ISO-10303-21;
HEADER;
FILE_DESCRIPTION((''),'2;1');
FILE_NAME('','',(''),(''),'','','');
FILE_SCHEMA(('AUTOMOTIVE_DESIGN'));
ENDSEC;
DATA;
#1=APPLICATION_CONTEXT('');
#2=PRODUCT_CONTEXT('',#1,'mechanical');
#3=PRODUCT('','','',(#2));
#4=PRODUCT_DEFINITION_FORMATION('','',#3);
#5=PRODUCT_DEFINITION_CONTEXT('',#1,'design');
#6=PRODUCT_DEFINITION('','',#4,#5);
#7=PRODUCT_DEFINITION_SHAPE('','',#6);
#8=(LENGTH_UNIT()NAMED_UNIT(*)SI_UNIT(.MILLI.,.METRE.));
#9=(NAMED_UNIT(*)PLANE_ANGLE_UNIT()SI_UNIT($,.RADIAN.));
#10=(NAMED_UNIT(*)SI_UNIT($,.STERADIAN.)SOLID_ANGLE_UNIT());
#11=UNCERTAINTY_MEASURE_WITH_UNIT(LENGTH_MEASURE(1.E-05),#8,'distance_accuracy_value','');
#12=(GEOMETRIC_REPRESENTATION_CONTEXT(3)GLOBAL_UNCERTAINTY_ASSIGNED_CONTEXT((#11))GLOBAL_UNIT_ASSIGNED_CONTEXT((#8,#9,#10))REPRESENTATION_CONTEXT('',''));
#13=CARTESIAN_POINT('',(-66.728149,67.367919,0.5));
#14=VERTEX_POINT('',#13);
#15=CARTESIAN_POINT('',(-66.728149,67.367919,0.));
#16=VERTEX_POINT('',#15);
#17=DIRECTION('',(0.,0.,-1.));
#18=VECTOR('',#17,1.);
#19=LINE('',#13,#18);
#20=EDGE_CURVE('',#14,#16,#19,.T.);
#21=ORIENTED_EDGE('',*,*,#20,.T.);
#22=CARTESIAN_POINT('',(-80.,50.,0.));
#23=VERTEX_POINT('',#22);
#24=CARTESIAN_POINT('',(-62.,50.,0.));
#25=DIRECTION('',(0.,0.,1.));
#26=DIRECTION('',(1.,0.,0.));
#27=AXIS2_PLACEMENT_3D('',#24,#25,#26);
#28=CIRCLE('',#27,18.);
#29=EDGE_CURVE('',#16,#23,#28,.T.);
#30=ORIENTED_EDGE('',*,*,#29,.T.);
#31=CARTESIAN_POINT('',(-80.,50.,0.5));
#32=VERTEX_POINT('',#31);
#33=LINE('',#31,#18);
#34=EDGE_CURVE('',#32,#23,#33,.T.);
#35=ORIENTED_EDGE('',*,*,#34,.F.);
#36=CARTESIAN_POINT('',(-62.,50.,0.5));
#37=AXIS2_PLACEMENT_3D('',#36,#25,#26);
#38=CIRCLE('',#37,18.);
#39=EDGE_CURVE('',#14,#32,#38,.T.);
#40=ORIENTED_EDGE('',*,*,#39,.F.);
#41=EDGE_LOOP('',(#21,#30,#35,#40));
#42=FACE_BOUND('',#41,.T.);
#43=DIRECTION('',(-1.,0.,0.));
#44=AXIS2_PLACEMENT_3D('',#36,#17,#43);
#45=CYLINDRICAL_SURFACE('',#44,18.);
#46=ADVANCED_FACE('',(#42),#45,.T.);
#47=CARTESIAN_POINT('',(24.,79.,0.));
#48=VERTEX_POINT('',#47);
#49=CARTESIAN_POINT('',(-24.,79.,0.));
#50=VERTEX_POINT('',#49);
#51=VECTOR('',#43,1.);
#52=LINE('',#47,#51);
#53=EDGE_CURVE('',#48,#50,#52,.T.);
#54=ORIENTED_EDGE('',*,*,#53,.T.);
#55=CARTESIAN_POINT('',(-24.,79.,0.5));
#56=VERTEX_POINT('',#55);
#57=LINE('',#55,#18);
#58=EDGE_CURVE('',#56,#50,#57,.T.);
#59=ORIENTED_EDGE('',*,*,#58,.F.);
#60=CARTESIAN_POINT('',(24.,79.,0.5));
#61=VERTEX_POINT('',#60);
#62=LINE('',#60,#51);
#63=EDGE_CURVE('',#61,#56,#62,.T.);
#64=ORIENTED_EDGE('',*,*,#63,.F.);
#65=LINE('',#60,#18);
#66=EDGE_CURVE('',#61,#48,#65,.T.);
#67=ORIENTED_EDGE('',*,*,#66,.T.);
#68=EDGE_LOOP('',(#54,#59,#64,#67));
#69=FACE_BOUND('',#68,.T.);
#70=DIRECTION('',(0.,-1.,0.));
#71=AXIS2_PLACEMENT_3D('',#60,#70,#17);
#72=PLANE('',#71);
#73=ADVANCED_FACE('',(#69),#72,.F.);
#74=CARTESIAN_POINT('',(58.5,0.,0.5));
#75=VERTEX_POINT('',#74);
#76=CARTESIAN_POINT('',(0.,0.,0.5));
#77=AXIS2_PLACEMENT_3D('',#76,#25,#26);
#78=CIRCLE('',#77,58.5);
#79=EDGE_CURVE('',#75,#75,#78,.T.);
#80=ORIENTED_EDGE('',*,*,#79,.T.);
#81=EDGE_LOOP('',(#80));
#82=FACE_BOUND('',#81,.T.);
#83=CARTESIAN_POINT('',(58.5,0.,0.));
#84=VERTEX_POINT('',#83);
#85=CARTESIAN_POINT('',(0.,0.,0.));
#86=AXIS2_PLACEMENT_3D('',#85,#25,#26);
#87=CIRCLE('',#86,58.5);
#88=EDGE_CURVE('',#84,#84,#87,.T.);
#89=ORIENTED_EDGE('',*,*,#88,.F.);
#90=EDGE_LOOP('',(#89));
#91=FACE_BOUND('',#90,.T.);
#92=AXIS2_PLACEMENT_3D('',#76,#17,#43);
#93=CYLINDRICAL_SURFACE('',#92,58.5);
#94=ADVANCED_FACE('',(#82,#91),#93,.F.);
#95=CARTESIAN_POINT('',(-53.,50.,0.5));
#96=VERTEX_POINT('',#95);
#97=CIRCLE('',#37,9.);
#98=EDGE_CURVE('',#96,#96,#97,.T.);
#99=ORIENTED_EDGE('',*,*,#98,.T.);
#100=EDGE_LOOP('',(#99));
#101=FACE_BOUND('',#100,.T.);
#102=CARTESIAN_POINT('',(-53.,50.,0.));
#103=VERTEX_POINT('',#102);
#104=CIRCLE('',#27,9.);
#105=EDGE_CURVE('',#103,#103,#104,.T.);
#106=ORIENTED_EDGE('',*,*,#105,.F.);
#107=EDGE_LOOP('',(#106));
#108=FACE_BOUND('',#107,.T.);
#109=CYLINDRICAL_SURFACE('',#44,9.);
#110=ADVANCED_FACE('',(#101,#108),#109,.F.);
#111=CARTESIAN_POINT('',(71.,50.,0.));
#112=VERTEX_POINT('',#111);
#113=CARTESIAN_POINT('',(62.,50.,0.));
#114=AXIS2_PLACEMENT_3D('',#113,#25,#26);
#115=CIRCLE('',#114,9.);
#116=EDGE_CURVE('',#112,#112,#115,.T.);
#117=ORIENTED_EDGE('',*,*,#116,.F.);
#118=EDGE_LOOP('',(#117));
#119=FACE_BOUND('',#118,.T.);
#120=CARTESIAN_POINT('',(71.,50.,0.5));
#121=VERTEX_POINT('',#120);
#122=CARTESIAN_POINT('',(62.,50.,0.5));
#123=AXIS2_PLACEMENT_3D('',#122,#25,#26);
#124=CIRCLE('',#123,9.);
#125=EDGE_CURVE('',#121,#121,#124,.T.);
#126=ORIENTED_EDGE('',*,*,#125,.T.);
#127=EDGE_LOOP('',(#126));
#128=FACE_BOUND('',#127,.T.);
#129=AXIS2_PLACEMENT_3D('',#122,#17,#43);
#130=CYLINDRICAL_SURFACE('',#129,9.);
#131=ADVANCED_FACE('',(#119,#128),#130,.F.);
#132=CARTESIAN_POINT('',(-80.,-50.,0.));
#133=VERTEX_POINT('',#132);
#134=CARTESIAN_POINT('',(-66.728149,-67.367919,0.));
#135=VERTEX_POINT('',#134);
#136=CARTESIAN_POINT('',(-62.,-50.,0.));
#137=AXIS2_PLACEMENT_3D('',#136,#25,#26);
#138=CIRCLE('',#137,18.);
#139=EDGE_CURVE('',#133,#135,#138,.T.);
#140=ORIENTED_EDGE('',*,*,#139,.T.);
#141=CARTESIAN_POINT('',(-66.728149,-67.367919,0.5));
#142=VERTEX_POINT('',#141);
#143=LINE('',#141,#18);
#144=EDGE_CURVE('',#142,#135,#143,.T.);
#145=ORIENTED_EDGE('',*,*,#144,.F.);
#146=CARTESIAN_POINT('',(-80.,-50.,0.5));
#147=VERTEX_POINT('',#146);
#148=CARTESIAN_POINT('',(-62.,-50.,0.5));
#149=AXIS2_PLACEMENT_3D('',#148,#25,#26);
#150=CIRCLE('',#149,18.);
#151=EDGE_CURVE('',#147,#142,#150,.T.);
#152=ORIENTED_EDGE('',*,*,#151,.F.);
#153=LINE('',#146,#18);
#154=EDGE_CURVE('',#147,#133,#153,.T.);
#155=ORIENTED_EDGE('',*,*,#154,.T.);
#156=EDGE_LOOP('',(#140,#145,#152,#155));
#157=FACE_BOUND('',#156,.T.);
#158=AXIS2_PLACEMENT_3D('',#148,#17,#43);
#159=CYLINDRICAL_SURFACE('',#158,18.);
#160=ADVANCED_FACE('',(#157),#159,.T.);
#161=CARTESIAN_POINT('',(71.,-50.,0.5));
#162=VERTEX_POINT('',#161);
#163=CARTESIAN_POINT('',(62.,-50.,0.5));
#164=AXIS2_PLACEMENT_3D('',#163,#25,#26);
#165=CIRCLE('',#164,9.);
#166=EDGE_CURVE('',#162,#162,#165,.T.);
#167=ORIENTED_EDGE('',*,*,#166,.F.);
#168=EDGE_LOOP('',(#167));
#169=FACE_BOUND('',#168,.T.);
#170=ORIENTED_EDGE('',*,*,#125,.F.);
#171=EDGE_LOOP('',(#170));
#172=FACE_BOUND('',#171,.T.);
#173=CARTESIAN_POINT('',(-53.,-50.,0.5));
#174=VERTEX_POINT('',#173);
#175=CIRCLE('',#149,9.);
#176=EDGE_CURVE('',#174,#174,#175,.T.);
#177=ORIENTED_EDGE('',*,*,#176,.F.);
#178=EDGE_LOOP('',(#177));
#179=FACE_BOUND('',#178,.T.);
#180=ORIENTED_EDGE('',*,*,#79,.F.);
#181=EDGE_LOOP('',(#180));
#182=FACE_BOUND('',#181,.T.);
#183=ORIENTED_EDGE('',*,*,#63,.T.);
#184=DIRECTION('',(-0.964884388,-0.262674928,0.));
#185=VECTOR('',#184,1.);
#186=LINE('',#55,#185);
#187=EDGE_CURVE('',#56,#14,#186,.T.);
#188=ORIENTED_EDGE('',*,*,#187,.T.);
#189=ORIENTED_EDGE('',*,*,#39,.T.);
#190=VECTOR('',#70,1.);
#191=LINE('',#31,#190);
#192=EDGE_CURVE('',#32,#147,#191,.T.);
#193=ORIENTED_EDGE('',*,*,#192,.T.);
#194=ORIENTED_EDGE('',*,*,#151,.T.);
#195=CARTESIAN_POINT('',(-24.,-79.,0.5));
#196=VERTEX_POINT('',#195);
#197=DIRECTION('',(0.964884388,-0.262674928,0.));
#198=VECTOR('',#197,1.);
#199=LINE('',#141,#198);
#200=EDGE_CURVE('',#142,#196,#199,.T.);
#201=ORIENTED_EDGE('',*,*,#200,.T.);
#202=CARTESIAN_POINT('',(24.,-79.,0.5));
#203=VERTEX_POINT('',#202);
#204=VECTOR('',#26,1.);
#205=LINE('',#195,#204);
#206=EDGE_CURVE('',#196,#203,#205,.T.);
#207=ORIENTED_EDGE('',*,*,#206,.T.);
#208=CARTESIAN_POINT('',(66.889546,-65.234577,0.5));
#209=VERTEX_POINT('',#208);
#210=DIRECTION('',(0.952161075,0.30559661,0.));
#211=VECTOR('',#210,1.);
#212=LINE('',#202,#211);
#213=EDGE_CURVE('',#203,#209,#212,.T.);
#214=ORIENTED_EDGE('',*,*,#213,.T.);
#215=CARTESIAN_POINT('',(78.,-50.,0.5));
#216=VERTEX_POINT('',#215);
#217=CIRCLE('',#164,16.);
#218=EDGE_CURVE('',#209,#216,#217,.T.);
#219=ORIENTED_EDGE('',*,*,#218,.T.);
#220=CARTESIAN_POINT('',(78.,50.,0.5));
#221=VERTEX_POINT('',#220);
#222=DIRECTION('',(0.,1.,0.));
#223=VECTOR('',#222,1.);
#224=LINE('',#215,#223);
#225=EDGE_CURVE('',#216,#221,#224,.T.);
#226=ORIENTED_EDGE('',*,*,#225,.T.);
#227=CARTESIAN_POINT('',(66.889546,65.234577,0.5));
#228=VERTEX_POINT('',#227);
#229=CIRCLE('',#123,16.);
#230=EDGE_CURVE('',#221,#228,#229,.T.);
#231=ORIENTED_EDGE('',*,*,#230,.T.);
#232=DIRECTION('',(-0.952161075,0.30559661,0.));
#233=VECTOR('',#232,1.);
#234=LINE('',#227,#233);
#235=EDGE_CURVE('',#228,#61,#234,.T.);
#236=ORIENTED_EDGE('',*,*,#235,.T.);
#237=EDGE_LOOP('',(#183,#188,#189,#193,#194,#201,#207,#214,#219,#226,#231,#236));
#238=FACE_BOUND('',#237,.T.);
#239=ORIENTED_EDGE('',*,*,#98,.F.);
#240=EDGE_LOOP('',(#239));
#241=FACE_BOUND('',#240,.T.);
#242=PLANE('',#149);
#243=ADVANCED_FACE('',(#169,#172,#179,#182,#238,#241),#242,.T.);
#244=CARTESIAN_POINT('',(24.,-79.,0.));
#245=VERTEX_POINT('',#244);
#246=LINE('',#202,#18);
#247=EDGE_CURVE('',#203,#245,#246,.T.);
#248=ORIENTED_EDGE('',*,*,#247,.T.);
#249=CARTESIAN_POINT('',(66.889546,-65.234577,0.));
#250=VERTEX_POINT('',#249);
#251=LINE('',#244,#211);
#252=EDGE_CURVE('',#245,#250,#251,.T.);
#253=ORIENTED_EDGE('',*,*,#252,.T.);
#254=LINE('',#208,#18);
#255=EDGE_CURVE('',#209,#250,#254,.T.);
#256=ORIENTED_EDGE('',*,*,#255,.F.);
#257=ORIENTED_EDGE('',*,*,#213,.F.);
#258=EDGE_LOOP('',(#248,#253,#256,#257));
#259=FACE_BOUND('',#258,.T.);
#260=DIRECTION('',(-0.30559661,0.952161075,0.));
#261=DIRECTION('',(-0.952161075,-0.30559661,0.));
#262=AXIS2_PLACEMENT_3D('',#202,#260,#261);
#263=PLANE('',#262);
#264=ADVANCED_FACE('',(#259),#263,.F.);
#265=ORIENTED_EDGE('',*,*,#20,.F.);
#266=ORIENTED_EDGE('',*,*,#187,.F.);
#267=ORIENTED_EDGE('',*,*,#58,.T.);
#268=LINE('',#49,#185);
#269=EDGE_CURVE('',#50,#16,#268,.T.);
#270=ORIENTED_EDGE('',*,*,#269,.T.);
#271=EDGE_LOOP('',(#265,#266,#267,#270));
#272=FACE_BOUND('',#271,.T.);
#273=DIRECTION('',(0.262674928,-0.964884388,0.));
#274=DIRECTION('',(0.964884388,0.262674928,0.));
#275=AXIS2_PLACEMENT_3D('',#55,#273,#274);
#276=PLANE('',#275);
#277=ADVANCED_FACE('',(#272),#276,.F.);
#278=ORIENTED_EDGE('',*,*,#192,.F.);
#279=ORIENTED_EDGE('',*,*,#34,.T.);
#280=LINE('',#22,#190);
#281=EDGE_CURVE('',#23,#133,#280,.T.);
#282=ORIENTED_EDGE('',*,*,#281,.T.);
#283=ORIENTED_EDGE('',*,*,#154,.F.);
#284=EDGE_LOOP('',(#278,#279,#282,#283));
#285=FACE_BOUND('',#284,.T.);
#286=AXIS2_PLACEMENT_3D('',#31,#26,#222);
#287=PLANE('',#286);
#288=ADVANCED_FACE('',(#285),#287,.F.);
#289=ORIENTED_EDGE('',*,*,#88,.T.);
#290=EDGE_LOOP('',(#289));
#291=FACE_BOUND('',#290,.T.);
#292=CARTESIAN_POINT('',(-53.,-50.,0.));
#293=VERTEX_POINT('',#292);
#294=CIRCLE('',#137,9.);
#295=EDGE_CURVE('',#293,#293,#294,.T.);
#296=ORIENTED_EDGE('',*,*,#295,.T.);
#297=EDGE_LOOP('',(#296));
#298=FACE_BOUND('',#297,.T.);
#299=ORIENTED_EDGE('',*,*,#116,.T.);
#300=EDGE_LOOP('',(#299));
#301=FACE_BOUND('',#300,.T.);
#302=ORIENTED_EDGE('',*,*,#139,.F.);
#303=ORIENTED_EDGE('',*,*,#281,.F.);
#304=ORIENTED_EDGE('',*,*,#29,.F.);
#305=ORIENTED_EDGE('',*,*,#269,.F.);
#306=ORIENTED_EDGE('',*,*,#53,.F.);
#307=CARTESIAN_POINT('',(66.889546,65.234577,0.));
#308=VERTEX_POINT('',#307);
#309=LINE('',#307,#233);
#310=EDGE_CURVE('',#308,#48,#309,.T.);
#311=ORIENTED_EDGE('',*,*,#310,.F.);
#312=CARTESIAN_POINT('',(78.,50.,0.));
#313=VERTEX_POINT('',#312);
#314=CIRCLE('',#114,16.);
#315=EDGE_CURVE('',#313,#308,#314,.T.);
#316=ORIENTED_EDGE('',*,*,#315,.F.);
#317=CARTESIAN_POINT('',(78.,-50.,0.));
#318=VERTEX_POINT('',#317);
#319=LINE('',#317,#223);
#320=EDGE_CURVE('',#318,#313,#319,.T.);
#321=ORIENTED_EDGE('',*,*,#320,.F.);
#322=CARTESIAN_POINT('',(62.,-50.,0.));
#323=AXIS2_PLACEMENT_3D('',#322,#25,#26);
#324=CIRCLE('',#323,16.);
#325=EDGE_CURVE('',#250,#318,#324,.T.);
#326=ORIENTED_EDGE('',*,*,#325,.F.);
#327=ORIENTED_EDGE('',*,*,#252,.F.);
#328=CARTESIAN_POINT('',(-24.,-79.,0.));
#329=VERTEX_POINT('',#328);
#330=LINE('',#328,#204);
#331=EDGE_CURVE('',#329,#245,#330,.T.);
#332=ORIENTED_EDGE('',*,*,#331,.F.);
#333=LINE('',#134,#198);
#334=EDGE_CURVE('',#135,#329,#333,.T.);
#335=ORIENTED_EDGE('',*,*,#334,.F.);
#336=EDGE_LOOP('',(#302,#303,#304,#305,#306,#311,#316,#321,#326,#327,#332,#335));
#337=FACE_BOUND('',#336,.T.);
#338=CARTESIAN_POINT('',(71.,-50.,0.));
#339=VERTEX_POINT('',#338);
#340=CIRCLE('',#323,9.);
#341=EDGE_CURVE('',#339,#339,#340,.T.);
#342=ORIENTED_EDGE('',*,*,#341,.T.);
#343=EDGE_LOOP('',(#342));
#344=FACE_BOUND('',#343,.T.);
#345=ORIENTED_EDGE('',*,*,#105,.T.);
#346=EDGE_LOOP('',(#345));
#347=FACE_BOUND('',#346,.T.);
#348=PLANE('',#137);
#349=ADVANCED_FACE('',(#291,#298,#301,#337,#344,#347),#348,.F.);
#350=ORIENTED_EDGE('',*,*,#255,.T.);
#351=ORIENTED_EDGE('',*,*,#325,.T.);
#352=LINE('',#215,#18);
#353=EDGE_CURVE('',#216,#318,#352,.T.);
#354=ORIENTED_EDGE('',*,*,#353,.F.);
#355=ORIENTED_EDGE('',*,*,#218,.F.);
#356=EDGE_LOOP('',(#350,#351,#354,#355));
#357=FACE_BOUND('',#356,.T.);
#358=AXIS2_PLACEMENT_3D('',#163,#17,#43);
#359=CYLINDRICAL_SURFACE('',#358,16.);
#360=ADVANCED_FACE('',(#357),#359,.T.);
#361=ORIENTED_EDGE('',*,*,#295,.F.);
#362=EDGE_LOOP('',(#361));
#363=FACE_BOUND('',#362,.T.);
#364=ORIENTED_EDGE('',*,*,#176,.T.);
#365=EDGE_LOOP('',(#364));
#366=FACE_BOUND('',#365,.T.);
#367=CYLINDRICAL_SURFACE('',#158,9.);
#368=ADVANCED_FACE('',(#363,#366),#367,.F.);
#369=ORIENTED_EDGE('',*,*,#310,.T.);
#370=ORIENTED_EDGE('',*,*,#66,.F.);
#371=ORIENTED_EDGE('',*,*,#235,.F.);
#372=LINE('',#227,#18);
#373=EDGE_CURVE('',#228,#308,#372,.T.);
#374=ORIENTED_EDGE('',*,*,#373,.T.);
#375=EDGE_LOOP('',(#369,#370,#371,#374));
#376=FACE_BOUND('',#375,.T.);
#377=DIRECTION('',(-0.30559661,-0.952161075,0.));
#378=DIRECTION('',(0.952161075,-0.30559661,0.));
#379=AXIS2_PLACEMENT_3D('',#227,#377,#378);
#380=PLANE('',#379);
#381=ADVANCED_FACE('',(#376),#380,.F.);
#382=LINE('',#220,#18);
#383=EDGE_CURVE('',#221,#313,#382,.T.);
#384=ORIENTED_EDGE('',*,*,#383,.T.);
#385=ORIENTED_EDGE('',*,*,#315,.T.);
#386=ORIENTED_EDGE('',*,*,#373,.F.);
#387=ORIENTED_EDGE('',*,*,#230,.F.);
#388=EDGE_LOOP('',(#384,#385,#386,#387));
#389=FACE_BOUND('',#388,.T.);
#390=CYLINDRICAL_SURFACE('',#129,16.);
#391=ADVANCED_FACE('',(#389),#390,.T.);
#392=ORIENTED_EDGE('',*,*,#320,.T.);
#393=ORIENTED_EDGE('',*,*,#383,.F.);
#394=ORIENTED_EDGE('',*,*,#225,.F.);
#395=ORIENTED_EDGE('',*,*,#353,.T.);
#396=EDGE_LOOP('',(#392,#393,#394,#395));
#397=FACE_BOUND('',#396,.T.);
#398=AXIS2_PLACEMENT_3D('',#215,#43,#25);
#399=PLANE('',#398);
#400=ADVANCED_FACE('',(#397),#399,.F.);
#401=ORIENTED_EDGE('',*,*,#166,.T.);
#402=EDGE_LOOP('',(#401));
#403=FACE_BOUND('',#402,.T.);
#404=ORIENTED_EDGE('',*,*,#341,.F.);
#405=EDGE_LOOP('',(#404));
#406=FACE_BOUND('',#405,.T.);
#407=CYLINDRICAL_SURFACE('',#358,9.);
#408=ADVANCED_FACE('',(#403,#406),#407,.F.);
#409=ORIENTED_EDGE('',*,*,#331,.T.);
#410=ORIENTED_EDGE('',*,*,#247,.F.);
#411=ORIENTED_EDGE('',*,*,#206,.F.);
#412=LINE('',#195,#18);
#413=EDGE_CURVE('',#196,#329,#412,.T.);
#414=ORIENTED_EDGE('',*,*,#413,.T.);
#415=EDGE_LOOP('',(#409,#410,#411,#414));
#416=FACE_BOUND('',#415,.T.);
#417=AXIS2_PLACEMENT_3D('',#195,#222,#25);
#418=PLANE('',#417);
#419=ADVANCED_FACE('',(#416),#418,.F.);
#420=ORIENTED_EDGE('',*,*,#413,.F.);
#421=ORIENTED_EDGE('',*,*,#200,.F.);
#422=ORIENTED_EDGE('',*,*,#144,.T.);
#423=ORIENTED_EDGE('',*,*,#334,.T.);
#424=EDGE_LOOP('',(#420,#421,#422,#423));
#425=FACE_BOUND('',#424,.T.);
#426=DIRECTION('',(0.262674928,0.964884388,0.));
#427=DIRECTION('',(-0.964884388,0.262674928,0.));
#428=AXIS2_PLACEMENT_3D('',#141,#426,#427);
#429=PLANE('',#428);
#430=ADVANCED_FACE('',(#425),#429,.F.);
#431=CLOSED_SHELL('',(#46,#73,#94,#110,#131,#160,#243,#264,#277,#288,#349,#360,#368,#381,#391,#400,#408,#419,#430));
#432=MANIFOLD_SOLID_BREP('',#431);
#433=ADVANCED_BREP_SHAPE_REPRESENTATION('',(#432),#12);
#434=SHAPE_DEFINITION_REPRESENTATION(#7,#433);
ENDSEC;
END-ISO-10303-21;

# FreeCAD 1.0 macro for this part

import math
import FreeCAD as App
import Part
import Sketcher
Q = App.Units.Quantity

doc = App.newDocument("Part")
body = doc.addObject("PartDesign::Body", "Body")

sketch1 = body.newObject("Sketcher::SketchObject", "Sketch")
sketch1.AttachmentSupport = (doc.getObject("XY_Plane"), [""])
sketch1.MapMode = "FlatFace"
sketch1.addGeometry([
    Part.LineSegment(App.Vector(-66.728149, -67.367919, 0), App.Vector(-24, -79, 0)),
    Part.LineSegment(App.Vector(-24, -79, 0), App.Vector(24, -79, 0)),
    Part.LineSegment(App.Vector(24, -79, 0), App.Vector(66.889546, -65.234577, 0)),
    Part.ArcOfCircle(Part.Circle(App.Vector(62, -50, 0), App.Vector(0, 0, 1), 16), math.radians(-72.205939), math.radians(0)),
    Part.LineSegment(App.Vector(78, -50, 0), App.Vector(78, 50, 0)),
    Part.ArcOfCircle(Part.Circle(App.Vector(62, 50, 0), App.Vector(0, 0, 1), 16), math.radians(0), math.radians(72.205939)),
    Part.LineSegment(App.Vector(66.889546, 65.234577, 0), App.Vector(24, 79, 0)),
    Part.LineSegment(App.Vector(24, 79, 0), App.Vector(-24, 79, 0)),
    Part.LineSegment(App.Vector(-24, 79, 0), App.Vector(-66.728149, 67.367919, 0)),
    Part.ArcOfCircle(Part.Circle(App.Vector(-62, 50, 0), App.Vector(0, 0, 1), 18), math.radians(105.228842), math.radians(180)),
    Part.LineSegment(App.Vector(-80, 50, 0), App.Vector(-80, -50, 0)),
    Part.ArcOfCircle(Part.Circle(App.Vector(-62, -50, 0), App.Vector(0, 0, 1), 18), math.radians(-180), math.radians(-105.228842)),
    Part.Circle(App.Vector(-62, -50, 0), App.Vector(0, 0, 1), 9),
    Part.Circle(App.Vector(62, -50, 0), App.Vector(0, 0, 1), 9),
    Part.Circle(App.Vector(-62, 50, 0), App.Vector(0, 0, 1), 9),
    Part.Circle(App.Vector(0, 0, 0), App.Vector(0, 0, 1), 58.5),
    Part.Circle(App.Vector(62, 50, 0), App.Vector(0, 0, 1), 9),
], False)
sketch1.addConstraint([
    Sketcher.Constraint("Coincident", 0, 2, 1, 1),
    Sketcher.Constraint("Coincident", 1, 2, 2, 1),
    Sketcher.Constraint("Tangent", 2, 2, 3, 1),
    Sketcher.Constraint("Tangent", 3, 2, 4, 1),
    Sketcher.Constraint("Tangent", 4, 2, 5, 1),
    Sketcher.Constraint("Tangent", 5, 2, 6, 1),
    Sketcher.Constraint("Coincident", 6, 2, 7, 1),
    Sketcher.Constraint("Coincident", 7, 2, 8, 1),
    Sketcher.Constraint("Tangent", 8, 2, 9, 1),
    Sketcher.Constraint("Tangent", 9, 2, 10, 1),
    Sketcher.Constraint("Tangent", 10, 2, 11, 1),
    Sketcher.Constraint("Tangent", 11, 2, 0, 1),
    Sketcher.Constraint("Horizontal", 1),
    Sketcher.Constraint("Vertical", 4),
    Sketcher.Constraint("Horizontal", 7),
    Sketcher.Constraint("Vertical", 10),
    Sketcher.Constraint("Coincident", 15, 3, -1, 1),
    Sketcher.Constraint("Coincident", 12, 3, 11, 3),
    Sketcher.Constraint("Coincident", 13, 3, 3, 3),
    Sketcher.Constraint("Coincident", 14, 3, 9, 3),
    Sketcher.Constraint("Coincident", 16, 3, 5, 3),
    Sketcher.Constraint("Equal", 3, 5),
    Sketcher.Constraint("Equal", 9, 11),
    Sketcher.Constraint("Equal", 12, 13),
    Sketcher.Constraint("Equal", 13, 14),
    Sketcher.Constraint("Equal", 14, 16),
    Sketcher.Constraint("Symmetric", 3, 3, 9, 3, -1, 1),
    Sketcher.Constraint("Symmetric", 0, 2, 6, 2, -1, 1),
    Sketcher.Constraint("Symmetric", 2, 2, 5, 2, -1),
    Sketcher.Constraint("Symmetric", 8, 2, 11, 2, -1),
    Sketcher.Constraint("Diameter", 12, Q("18 mm")),
    Sketcher.Constraint("Diameter", 15, Q("117 mm")),
    Sketcher.Constraint("Radius", 3, Q("16 mm")),
    Sketcher.Constraint("Radius", 9, Q("18 mm")),
    Sketcher.Constraint("DistanceX", 1, 1, 1, 2, Q("48 mm")),
    Sketcher.Constraint("DistanceY", 4, 1, 4, 2, Q("100 mm")),
    Sketcher.Constraint("DistanceX", -1, 1, 3, 3, Q("62 mm")),
    Sketcher.Constraint("DistanceY", 0, 2, -1, 1, Q("79 mm")),
])
pad1 = body.newObject("PartDesign::Pad", "Pad")
pad1.Profile = sketch1
pad1.Length = 0.5

doc.recompute()
